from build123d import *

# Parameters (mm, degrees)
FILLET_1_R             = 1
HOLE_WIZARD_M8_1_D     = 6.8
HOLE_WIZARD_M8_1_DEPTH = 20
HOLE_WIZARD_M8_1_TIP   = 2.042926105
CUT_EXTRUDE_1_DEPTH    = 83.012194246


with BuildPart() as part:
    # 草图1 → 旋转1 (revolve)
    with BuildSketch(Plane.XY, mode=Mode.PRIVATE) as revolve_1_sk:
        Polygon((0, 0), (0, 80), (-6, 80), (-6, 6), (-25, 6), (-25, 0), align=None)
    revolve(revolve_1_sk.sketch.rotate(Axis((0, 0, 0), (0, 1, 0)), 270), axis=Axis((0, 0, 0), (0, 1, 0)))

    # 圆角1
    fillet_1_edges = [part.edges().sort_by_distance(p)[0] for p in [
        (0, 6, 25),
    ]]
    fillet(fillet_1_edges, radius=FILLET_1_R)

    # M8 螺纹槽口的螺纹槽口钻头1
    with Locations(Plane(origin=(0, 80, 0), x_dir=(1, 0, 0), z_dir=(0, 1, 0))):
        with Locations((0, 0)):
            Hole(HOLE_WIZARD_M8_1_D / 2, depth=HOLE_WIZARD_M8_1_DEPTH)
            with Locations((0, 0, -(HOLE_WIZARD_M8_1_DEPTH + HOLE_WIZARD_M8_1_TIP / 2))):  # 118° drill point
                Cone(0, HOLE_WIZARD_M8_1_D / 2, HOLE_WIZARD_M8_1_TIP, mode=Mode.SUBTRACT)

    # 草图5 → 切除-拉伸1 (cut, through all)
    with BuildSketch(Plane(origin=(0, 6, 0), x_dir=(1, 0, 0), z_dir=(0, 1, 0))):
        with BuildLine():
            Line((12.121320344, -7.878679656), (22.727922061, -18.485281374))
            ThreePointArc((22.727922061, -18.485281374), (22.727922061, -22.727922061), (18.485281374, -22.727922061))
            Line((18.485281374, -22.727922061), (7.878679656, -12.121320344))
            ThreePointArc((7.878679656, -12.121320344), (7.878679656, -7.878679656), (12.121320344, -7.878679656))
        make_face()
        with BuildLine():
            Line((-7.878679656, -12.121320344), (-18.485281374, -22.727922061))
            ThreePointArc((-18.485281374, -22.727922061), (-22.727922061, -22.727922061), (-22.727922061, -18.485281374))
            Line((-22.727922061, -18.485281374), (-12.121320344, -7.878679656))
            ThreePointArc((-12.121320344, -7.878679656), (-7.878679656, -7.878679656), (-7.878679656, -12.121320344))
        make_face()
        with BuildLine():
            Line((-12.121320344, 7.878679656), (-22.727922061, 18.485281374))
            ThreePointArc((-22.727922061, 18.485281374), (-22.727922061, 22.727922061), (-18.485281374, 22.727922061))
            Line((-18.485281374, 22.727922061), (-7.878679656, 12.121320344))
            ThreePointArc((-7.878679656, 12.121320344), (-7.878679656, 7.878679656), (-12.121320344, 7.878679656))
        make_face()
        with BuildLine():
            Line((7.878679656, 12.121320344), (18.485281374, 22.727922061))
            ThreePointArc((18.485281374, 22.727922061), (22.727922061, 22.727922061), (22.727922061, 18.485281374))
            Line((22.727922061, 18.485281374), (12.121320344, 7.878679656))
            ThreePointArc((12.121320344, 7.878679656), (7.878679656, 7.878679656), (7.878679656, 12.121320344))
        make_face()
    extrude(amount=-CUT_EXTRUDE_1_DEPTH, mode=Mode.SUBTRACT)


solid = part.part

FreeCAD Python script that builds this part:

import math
import FreeCAD as App
import Part
import Sketcher


def edges_at(feature, points):
    """Names of the edges that pass closest to the given points."""
    edges = feature.Shape.Edges
    near = lambda p: min(range(len(edges)), key=lambda i: edges[i].distToShape(Part.Vertex(*p))[0])
    return sorted({f"Edge{near(p) + 1}" for p in points})


def add_polygon(sketch, points):
    """Adds a closed chain of lines whose ends are joined by coincident constraints."""
    first, n = sketch.GeometryCount, len(points)
    for a, b in zip(points, points[1:] + points[:1]):
        sketch.addGeometry(Part.LineSegment(App.Vector(*a, 0), App.Vector(*b, 0)), False)
    for i in range(n):
        sketch.addConstraint(Sketcher.Constraint("Coincident", first + i, 2, first + (i + 1) % n, 1))

doc = App.newDocument("Part")
params = doc.addObject("Spreadsheet::Sheet", "Params")
for row, (alias, value) in enumerate([
    ("sketch1_width", "6 mm"),
    ("sketch1_width2", "19 mm"),
    ("sketch1_height", "80 mm"),
    ("revolution_angle", "360 deg"),
    ("fillet_radius", "1 mm"),
    ("sketch2_diameter", "6.8 mm"),
    ("hole_diameter", "6.8 mm"),
    ("hole_depth", "20 mm"),
    ("sketch3_radius", "3 mm"),
    ("sketch3_length", "15 mm"),
], start=1):
    params.set(f"A{row}", alias)
    params.set(f"B{row}", "=" + value)
    params.setAlias(f"B{row}", alias)

body = doc.addObject("PartDesign::Body", "Body")

sketch1 = body.newObject("Sketcher::SketchObject", "Sketch")
sketch1.AttachmentSupport = (doc.getObject("XY_Plane"), [""])
sketch1.MapMode = "FlatFace"
add_polygon(sketch1, [(0, 0), (0, 80), (-6, 80), (-6, 6), (-25, 6), (-25, 0)])
sketch1.addConstraint([
    Sketcher.Constraint("Vertical", 0),
    Sketcher.Constraint("Horizontal", 1),
    Sketcher.Constraint("Vertical", 2),
    Sketcher.Constraint("Horizontal", 3),
    Sketcher.Constraint("Vertical", 4),
    Sketcher.Constraint("Horizontal", 5),
    Sketcher.Constraint("Coincident", 5, 2, -1, 1),
    Sketcher.Constraint("Equal", 1, 4),
    Sketcher.Constraint("DistanceX", 1, 2, 1, 1, 6.0),
    Sketcher.Constraint("DistanceX", 3, 2, 3, 1, 19.0),
    Sketcher.Constraint("DistanceY", 0, 1, 0, 2, 80.0),
])
sketch1.setExpression("Constraints[14]", "Params.sketch1_width")
sketch1.setExpression("Constraints[15]", "Params.sketch1_width2")
sketch1.setExpression("Constraints[16]", "Params.sketch1_height")
revolution = body.newObject("PartDesign::Revolution", "Revolution")
revolution.Profile = sketch1
revolution.ReferenceAxis = (sketch1, ["V_Axis"])
revolution.setExpression("Angle", "Params.revolution_angle")
doc.recompute()

fillet = body.newObject("PartDesign::Fillet", "Fillet")
fillet.Base = (revolution, edges_at(revolution, [(0, 6, 25)]))
fillet.setExpression("Radius", "Params.fillet_radius")

sketch2 = body.newObject("Sketcher::SketchObject", "Sketch001")
sketch2.AttachmentSupport = (doc.getObject("XZ_Plane"), [""])
sketch2.MapMode = "FlatFace"
sketch2.AttachmentOffset = App.Placement(App.Vector(0, 0, -80), App.Rotation())
sketch2.addGeometry(Part.Circle(App.Vector(0, 0, 0), App.Vector(0, 0, 1), 3.4), False)
sketch2.addConstraint([
    Sketcher.Constraint("Coincident", 0, 3, -1, 1),
    Sketcher.Constraint("Diameter", 0, 6.8),
])
sketch2.setExpression("Constraints[1]", "Params.sketch2_diameter")
doc.recompute()
hole = body.newObject("PartDesign::Hole", "Hole")
hole.Profile = sketch2
hole.ThreadType = "None"
hole.setExpression("Diameter", "Params.hole_diameter")
hole.DepthType = "Dimension"
hole.setExpression("Depth", "Params.hole_depth")
hole.DrillPoint = "Angled"
hole.DrillPointAngle = 118
hole.Reversed = True

sketch3 = body.newObject("Sketcher::SketchObject", "Sketch002")
sketch3.AttachmentSupport = (doc.getObject("XZ_Plane"), [""])
sketch3.MapMode = "FlatFace"
sketch3.AttachmentOffset = App.Placement(App.Vector(0, 0, -6), App.Rotation())
sketch3.addGeometry([
    Part.LineSegment(App.Vector(22.7, 18.5, 0), App.Vector(12.1, 7.9, 0)),
    Part.ArcOfCircle(Part.Circle(App.Vector(10, 10, 0), App.Vector(0, 0, 1), 3), math.radians(135), math.radians(315)),
    Part.LineSegment(App.Vector(7.9, 12.1, 0), App.Vector(18.5, 22.7, 0)),
    Part.ArcOfCircle(Part.Circle(App.Vector(20.6, 20.6, 0), App.Vector(0, 0, 1), 3), math.radians(-45), math.radians(135)),
    Part.LineSegment(App.Vector(-18.5, 22.7, 0), App.Vector(-7.9, 12.1, 0)),
    Part.ArcOfCircle(Part.Circle(App.Vector(-10, 10, 0), App.Vector(0, 0, 1), 3), math.radians(-135), math.radians(45)),
    Part.LineSegment(App.Vector(-12.1, 7.9, 0), App.Vector(-22.7, 18.5, 0)),
    Part.ArcOfCircle(Part.Circle(App.Vector(-20.6, 20.6, 0), App.Vector(0, 0, 1), 3), math.radians(45), math.radians(225)),
    Part.LineSegment(App.Vector(-22.7, -18.5, 0), App.Vector(-12.1, -7.9, 0)),
    Part.ArcOfCircle(Part.Circle(App.Vector(-10, -10, 0), App.Vector(0, 0, 1), 3), math.radians(-45), math.radians(135)),
    Part.LineSegment(App.Vector(-7.9, -12.1, 0), App.Vector(-18.5, -22.7, 0)),
    Part.ArcOfCircle(Part.Circle(App.Vector(-20.6, -20.6, 0), App.Vector(0, 0, 1), 3), math.radians(135), math.radians(315)),
    Part.LineSegment(App.Vector(18.5, -22.7, 0), App.Vector(7.9, -12.1, 0)),
    Part.ArcOfCircle(Part.Circle(App.Vector(10, -10, 0), App.Vector(0, 0, 1), 3), math.radians(45), math.radians(225)),
    Part.LineSegment(App.Vector(12.1, -7.9, 0), App.Vector(22.7, -18.5, 0)),
    Part.ArcOfCircle(Part.Circle(App.Vector(20.6, -20.6, 0), App.Vector(0, 0, 1), 3), math.radians(-135), math.radians(45)),
], False)
sketch3.addConstraint([
    Sketcher.Constraint("Tangent", 0, 2, 1, 2),
    Sketcher.Constraint("Tangent", 1, 1, 2, 1),
    Sketcher.Constraint("Tangent", 2, 2, 3, 2),
    Sketcher.Constraint("Tangent", 3, 1, 0, 1),
    Sketcher.Constraint("Tangent", 4, 2, 5, 2),
    Sketcher.Constraint("Tangent", 5, 1, 6, 1),
    Sketcher.Constraint("Tangent", 6, 2, 7, 2),
    Sketcher.Constraint("Tangent", 7, 1, 4, 1),
    Sketcher.Constraint("Tangent", 8, 2, 9, 2),
    Sketcher.Constraint("Tangent", 9, 1, 10, 1),
    Sketcher.Constraint("Tangent", 10, 2, 11, 2),
    Sketcher.Constraint("Tangent", 11, 1, 8, 1),
    Sketcher.Constraint("Tangent", 12, 2, 13, 2),
    Sketcher.Constraint("Tangent", 13, 1, 14, 1),
    Sketcher.Constraint("Tangent", 14, 2, 15, 2),
    Sketcher.Constraint("Tangent", 15, 1, 12, 1),
    Sketcher.Constraint("Equal", 1, 3),
    Sketcher.Constraint("Equal", 3, 5),
    Sketcher.Constraint("Equal", 5, 7),
    Sketcher.Constraint("Equal", 7, 9),
    Sketcher.Constraint("Equal", 9, 11),
    Sketcher.Constraint("Equal", 11, 13),
    Sketcher.Constraint("Equal", 13, 15),
    Sketcher.Constraint("Symmetric", 1, 3, 9, 3, -1, 1),
    Sketcher.Constraint("Symmetric", 3, 3, 11, 3, -1, 1),
    Sketcher.Constraint("Symmetric", 5, 3, 13, 3, -1, 1),
    Sketcher.Constraint("Symmetric", 7, 3, 15, 3, -1, 1),
    Sketcher.Constraint("Symmetric", 1, 3, 5, 3, -2),
    Sketcher.Constraint("Symmetric", 3, 3, 7, 3, -2),
    Sketcher.Constraint("Perpendicular", 2, 4),
    Sketcher.Constraint("Radius", 1, 3.0),
    Sketcher.Constraint("Distance", 0, 15.0),
    Sketcher.Constraint("DistanceX", -1, 1, 1, 3, 10.0),
    Sketcher.Constraint("DistanceY", -1, 1, 1, 3, 10.0),
])
sketch3.setExpression("Constraints[30]", "Params.sketch3_radius")
sketch3.setExpression("Constraints[31]", "Params.sketch3_length")
pocket1 = body.newObject("PartDesign::Pocket", "Pocket")
pocket1.Profile = sketch3
pocket1.Type = "ThroughAll"
pocket1.Reversed = True

doc.recompute()
